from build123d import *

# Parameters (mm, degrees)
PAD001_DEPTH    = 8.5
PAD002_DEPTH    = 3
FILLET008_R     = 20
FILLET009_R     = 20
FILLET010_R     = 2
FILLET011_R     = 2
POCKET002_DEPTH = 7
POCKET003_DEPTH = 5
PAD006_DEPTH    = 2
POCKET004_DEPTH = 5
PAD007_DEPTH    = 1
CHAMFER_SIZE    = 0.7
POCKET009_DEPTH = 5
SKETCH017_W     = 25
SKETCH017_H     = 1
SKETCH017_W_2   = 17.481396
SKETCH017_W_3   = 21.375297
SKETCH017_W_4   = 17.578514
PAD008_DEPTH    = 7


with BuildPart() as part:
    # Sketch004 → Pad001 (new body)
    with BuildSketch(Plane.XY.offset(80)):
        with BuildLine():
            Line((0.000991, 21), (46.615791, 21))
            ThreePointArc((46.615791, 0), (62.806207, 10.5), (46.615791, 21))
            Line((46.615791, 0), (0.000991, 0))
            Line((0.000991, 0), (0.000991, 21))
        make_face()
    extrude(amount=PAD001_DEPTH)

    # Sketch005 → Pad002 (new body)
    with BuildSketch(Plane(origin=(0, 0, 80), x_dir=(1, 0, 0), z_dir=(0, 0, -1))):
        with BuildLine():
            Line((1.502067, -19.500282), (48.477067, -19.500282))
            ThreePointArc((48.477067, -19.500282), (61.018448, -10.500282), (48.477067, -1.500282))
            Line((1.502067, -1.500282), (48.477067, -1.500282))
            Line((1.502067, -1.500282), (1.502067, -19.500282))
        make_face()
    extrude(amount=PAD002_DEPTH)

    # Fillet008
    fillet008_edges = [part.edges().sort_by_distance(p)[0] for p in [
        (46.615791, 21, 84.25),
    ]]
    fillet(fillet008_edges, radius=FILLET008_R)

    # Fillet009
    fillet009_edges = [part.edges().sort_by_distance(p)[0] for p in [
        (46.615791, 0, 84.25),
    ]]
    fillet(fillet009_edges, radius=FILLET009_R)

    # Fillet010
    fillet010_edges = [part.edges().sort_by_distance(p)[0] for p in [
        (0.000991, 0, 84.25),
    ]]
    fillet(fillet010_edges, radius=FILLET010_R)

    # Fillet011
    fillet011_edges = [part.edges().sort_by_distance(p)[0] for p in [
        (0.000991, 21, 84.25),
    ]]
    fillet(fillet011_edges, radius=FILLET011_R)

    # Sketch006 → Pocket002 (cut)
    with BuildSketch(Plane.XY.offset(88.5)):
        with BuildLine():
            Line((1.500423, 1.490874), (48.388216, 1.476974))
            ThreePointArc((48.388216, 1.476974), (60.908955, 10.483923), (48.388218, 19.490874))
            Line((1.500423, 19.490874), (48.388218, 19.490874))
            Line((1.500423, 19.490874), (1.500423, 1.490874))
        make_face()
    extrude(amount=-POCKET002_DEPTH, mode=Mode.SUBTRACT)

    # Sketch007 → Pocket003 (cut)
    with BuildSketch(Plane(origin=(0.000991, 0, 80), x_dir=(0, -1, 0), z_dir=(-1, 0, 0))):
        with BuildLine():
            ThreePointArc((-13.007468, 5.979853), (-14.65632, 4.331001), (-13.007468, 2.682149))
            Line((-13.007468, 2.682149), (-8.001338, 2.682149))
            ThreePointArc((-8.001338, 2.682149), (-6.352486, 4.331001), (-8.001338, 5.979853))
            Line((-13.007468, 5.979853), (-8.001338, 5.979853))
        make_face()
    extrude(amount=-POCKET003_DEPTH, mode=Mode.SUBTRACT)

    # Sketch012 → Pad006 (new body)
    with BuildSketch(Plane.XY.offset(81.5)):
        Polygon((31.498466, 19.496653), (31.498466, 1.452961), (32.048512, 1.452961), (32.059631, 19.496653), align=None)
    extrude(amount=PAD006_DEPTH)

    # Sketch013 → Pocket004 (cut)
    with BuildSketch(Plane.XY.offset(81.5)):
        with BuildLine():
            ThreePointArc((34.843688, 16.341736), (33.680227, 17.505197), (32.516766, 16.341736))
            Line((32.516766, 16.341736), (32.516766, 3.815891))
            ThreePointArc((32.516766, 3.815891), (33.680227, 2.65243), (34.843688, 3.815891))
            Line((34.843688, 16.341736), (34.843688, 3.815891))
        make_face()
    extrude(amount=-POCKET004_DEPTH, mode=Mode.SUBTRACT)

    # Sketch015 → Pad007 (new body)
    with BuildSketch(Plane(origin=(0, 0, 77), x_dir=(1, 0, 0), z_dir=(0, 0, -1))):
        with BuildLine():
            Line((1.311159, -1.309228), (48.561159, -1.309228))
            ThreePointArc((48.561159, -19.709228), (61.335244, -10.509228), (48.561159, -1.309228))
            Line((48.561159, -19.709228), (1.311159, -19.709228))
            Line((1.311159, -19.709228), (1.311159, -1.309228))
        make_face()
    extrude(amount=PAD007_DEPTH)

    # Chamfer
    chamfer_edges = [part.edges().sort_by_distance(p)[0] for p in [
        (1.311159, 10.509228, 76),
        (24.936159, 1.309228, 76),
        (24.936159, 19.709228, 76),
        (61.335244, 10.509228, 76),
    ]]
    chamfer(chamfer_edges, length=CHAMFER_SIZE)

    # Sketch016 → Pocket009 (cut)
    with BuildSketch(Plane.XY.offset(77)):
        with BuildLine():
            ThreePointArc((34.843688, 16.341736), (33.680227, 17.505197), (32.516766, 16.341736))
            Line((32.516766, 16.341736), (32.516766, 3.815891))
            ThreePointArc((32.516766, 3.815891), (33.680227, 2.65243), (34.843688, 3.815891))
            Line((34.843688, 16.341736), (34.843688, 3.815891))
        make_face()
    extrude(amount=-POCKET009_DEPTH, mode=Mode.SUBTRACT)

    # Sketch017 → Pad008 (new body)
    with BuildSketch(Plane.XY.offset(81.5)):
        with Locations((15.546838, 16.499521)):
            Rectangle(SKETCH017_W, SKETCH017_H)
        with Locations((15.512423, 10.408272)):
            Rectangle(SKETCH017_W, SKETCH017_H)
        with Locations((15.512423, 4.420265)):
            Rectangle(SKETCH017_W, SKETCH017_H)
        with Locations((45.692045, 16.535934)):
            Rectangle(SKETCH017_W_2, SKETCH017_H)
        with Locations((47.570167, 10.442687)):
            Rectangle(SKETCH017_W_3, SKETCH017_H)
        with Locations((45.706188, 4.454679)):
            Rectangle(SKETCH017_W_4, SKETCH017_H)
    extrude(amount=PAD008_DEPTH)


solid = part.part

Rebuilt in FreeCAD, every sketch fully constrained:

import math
import FreeCAD as App
import Part
import Sketcher

V = App.Vector
Q = App.Units.Quantity


def edges_at(feature, points):
    """Names of the edges that pass closest to the given points."""
    edges = feature.Shape.Edges
    near = lambda p: min(range(len(edges)), key=lambda i: edges[i].distToShape(Part.Vertex(*p))[0])
    return sorted({f"Edge{near(p) + 1}" for p in points})

doc = App.newDocument("Part")
body = doc.addObject("PartDesign::Body", "Body")

# Sketch on XY plane
sketch1 = body.newObject("Sketcher::SketchObject", "Sketch")
sketch1.AttachmentSupport = (doc.getObject("XY_Plane"), [""])
sketch1.MapMode = "FlatFace"
sketch1.AttachmentOffset = App.Placement(V(0, 0, 80), App.Rotation())
sketch1.addGeometry(Part.LineSegment(V(46.615791, 21, 0), V(0.000991, 21, 0)), False)
sketch1.addGeometry(Part.LineSegment(V(0.000991, 21, 0), V(0.000991, 0, 0)), False)
sketch1.addGeometry(Part.LineSegment(V(0.000991, 0, 0), V(46.615791, 0, 0)), False)
sketch1.addGeometry(Part.ArcOfCircle(Part.Circle(V(51.306207, 10.5, 0), V(0, 0, 1), 11.5), math.radians(-114.070615), math.radians(114.070615)), False)
sketch1.addConstraint(Sketcher.Constraint("Coincident", 0, 2, 1, 1))
sketch1.addConstraint(Sketcher.Constraint("Coincident", 1, 2, 2, 1))
sketch1.addConstraint(Sketcher.Constraint("Coincident", 2, 2, 3, 1))
sketch1.addConstraint(Sketcher.Constraint("Coincident", 3, 2, 0, 1))
sketch1.addConstraint(Sketcher.Constraint("Horizontal", 0))
sketch1.addConstraint(Sketcher.Constraint("Vertical", 1))
sketch1.addConstraint(Sketcher.Constraint("Horizontal", 2))
sketch1.addConstraint(Sketcher.Constraint("PointOnObject", 1, 2, -1))
sketch1.addConstraint(Sketcher.Constraint("Vertical", 2, 2, 3, 2))
sketch1.addConstraint(Sketcher.Constraint("Radius", 3, Q("11.5 mm")))
sketch1.addConstraint(Sketcher.Constraint("DistanceY", 1, 2, 1, 1, Q("21 mm")))
sketch1.addConstraint(Sketcher.Constraint("DistanceX", 0, 2, 0, 1, Q("46.6148 mm")))
sketch1.addConstraint(Sketcher.Constraint("DistanceX", -1, 1, 0, 2, Q("0.000991 mm")))
pad1 = body.newObject("PartDesign::Pad", "Pad")
pad1.Profile = sketch1
pad1.Length = 8.5

# Sketch on XY plane
sketch2 = body.newObject("Sketcher::SketchObject", "Sketch001")
sketch2.AttachmentSupport = (doc.getObject("XY_Plane"), [""])
sketch2.MapMode = "FlatFace"
sketch2.AttachmentOffset = App.Placement(V(0, 0, 80), App.Rotation())
sketch2.addGeometry(Part.LineSegment(V(1.502067, 19.500282, 0), V(48.477067, 19.500282, 0)), False)
sketch2.addGeometry(Part.ArcOfCircle(Part.Circle(V(51.518448, 10.500282, 0), V(0, 0, 1), 9.5), math.radians(-108.671717), math.radians(108.671717)), False)
sketch2.addGeometry(Part.LineSegment(V(48.477067, 1.500282, 0), V(1.502067, 1.500282, 0)), False)
sketch2.addGeometry(Part.LineSegment(V(1.502067, 1.500282, 0), V(1.502067, 19.500282, 0)), False)
sketch2.addConstraint(Sketcher.Constraint("Coincident", 0, 2, 1, 2))
sketch2.addConstraint(Sketcher.Constraint("Coincident", 1, 1, 2, 1))
sketch2.addConstraint(Sketcher.Constraint("Coincident", 2, 2, 3, 1))
sketch2.addConstraint(Sketcher.Constraint("Coincident", 3, 2, 0, 1))
sketch2.addConstraint(Sketcher.Constraint("Horizontal", 0))
sketch2.addConstraint(Sketcher.Constraint("Horizontal", 2))
sketch2.addConstraint(Sketcher.Constraint("Vertical", 3))
sketch2.addConstraint(Sketcher.Constraint("Vertical", 0, 2, 1, 1))
sketch2.addConstraint(Sketcher.Constraint("Radius", 1, Q("9.5 mm")))
sketch2.addConstraint(Sketcher.Constraint("DistanceY", 3, 1, 3, 2, Q("18 mm")))
sketch2.addConstraint(Sketcher.Constraint("DistanceX", 0, 1, 0, 2, Q("46.975 mm")))
sketch2.addConstraint(Sketcher.Constraint("DistanceX", -1, 1, 1, 3, Q("51.518448 mm")))
sketch2.addConstraint(Sketcher.Constraint("DistanceY", -1, 1, 0, 2, Q("19.500282 mm")))
pad2 = body.newObject("PartDesign::Pad", "Pad001")
pad2.Profile = sketch2
pad2.Length = 3
pad2.Reversed = True
doc.recompute()

fillet = body.newObject("PartDesign::Fillet", "Fillet")
fillet.Base = (pad2, edges_at(pad2, [(46.616, 21, 84.25)]))
fillet.Radius = 20
doc.recompute()

fillet2 = body.newObject("PartDesign::Fillet", "Fillet001")
fillet2.Base = (fillet, edges_at(fillet, [(46.616, 0, 84.25)]))
fillet2.Radius = 20
doc.recompute()

fillet3 = body.newObject("PartDesign::Fillet", "Fillet002")
fillet3.Base = (fillet2, edges_at(fillet2, [(0.001, 0, 84.25)]))
fillet3.Radius = 2
doc.recompute()

fillet4 = body.newObject("PartDesign::Fillet", "Fillet003")
fillet4.Base = (fillet3, edges_at(fillet3, [(0.001, 21, 84.25)]))
fillet4.Radius = 2

# Sketch on XY plane
sketch3 = body.newObject("Sketcher::SketchObject", "Sketch002")
sketch3.AttachmentSupport = (doc.getObject("XY_Plane"), [""])
sketch3.MapMode = "FlatFace"
sketch3.AttachmentOffset = App.Placement(V(0, 0, 88.5), App.Rotation())
sketch3.addGeometry(Part.LineSegment(V(1.500423, 1.490874, 0), V(48.388216, 1.476974, 0)), False)
sketch3.addGeometry(Part.ArcOfCircle(Part.Circle(V(51.408955, 10.483924, 0), V(0, 0, 1), 9.5), math.radians(-108.540354), math.radians(108.540341)), False)
sketch3.addGeometry(Part.LineSegment(V(48.388218, 19.490874, 0), V(1.500423, 19.490874, 0)), False)
sketch3.addGeometry(Part.LineSegment(V(1.500423, 19.490874, 0), V(1.500423, 1.490874, 0)), False)
sketch3.addConstraint(Sketcher.Constraint("Coincident", 0, 2, 1, 1))
sketch3.addConstraint(Sketcher.Constraint("Coincident", 1, 2, 2, 1))
sketch3.addConstraint(Sketcher.Constraint("Coincident", 2, 2, 3, 1))
sketch3.addConstraint(Sketcher.Constraint("Coincident", 3, 2, 0, 1))
sketch3.addConstraint(Sketcher.Constraint("Horizontal", 2))
sketch3.addConstraint(Sketcher.Constraint("Vertical", 3))
sketch3.addConstraint(Sketcher.Constraint("Vertical", 0, 2, 1, 2))
sketch3.addConstraint(Sketcher.Constraint("Radius", 1, Q("9.5 mm")))
sketch3.addConstraint(Sketcher.Constraint("DistanceY", 3, 2, 3, 1, Q("18 mm")))
sketch3.addConstraint(Sketcher.Constraint("DistanceY", 0, 2, 1, 2, Q("18.0139 mm")))
sketch3.addConstraint(Sketcher.Constraint("DistanceX", 2, 2, 2, 1, Q("46.887795 mm")))
sketch3.addConstraint(Sketcher.Constraint("DistanceX", -1, 1, 1, 3, Q("51.408955 mm")))
sketch3.addConstraint(Sketcher.Constraint("DistanceY", -1, 1, 1, 3, Q("10.483924 mm")))
pocket1 = body.newObject("PartDesign::Pocket", "Pocket")
pocket1.Profile = sketch3
pocket1.Length = 7

# Sketch on YZ plane
sketch4 = body.newObject("Sketcher::SketchObject", "Sketch003")
sketch4.AttachmentSupport = (doc.getObject("YZ_Plane"), [""])
sketch4.MapMode = "FlatFace"
sketch4.AttachmentOffset = App.Placement(V(0, 0, 0.000991), App.Rotation())
sketch4.addGeometry(Part.ArcOfCircle(Part.Circle(V(13.007468, 84.331001, 0), V(0, 0, 1), 1.648852), math.radians(-90), math.radians(90)), False)
sketch4.addGeometry(Part.LineSegment(V(13.007468, 82.682149, 0), V(8.001338, 82.682149, 0)), False)
sketch4.addGeometry(Part.ArcOfCircle(Part.Circle(V(8.001338, 84.331001, 0), V(0, 0, 1), 1.648852), math.radians(90), math.radians(270)), False)
sketch4.addGeometry(Part.LineSegment(V(8.001338, 85.979853, 0), V(13.007468, 85.979853, 0)), False)
sketch4.addConstraint(Sketcher.Constraint("Tangent", 0, 1, 1, 1))
sketch4.addConstraint(Sketcher.Constraint("Tangent", 1, 2, 2, 2))
sketch4.addConstraint(Sketcher.Constraint("Tangent", 2, 1, 3, 1))
sketch4.addConstraint(Sketcher.Constraint("Tangent", 3, 2, 0, 2))
sketch4.addConstraint(Sketcher.Constraint("Horizontal", 1))
sketch4.addConstraint(Sketcher.Constraint("Horizontal", 3))
sketch4.addConstraint(Sketcher.Constraint("DistanceY", -1, 1, 0, 3, Q("84.331001 mm")))
sketch4.addConstraint(Sketcher.Constraint("Radius", 0, Q("1.648852 mm")))
sketch4.addConstraint(Sketcher.Constraint("DistanceX", 1, 2, 1, 1, Q("5.00613 mm")))
sketch4.addConstraint(Sketcher.Constraint("DistanceX", -1, 1, 0, 3, Q("13.007468 mm")))
pocket2 = body.newObject("PartDesign::Pocket", "Pocket001")
pocket2.Profile = sketch4
pocket2.Length = 5
pocket2.Reversed = True

# Sketch on XY plane
sketch5 = body.newObject("Sketcher::SketchObject", "Sketch004")
sketch5.AttachmentSupport = (doc.getObject("XY_Plane"), [""])
sketch5.MapMode = "FlatFace"
sketch5.AttachmentOffset = App.Placement(V(0, 0, 81.5), App.Rotation())
sketch5.addGeometry(Part.LineSegment(V(31.498466, 19.496653, 0), V(31.498466, 1.452961, 0)), False)
sketch5.addGeometry(Part.LineSegment(V(31.498466, 1.452961, 0), V(32.048512, 1.452961, 0)), False)
sketch5.addGeometry(Part.LineSegment(V(32.048512, 1.452961, 0), V(32.059631, 19.496653, 0)), False)
sketch5.addGeometry(Part.LineSegment(V(32.059631, 19.496653, 0), V(31.498466, 19.496653, 0)), False)
sketch5.addConstraint(Sketcher.Constraint("Coincident", 0, 2, 1, 1))
sketch5.addConstraint(Sketcher.Constraint("Coincident", 1, 2, 2, 1))
sketch5.addConstraint(Sketcher.Constraint("Coincident", 2, 2, 3, 1))
sketch5.addConstraint(Sketcher.Constraint("Coincident", 3, 2, 0, 1))
sketch5.addConstraint(Sketcher.Constraint("Vertical", 0))
sketch5.addConstraint(Sketcher.Constraint("Horizontal", 1))
sketch5.addConstraint(Sketcher.Constraint("Horizontal", 3))
sketch5.addConstraint(Sketcher.Constraint("DistanceY", 0, 2, 0, 1, Q("18.043692 mm")))
sketch5.addConstraint(Sketcher.Constraint("DistanceX", 1, 1, 1, 2, Q("0.550046 mm")))
sketch5.addConstraint(Sketcher.Constraint("DistanceX", 3, 2, 3, 1, Q("0.561165 mm")))
sketch5.addConstraint(Sketcher.Constraint("DistanceY", -1, 1, 0, 2, Q("1.452961 mm")))
sketch5.addConstraint(Sketcher.Constraint("DistanceX", -1, 1, 2, 2, Q("32.059631 mm")))
pad3 = body.newObject("PartDesign::Pad", "Pad002")
pad3.Profile = sketch5
pad3.Length = 2

# Sketch on XY plane
sketch6 = body.newObject("Sketcher::SketchObject", "Sketch005")
sketch6.AttachmentSupport = (doc.getObject("XY_Plane"), [""])
sketch6.MapMode = "FlatFace"
sketch6.AttachmentOffset = App.Placement(V(0, 0, 81.5), App.Rotation())
sketch6.addGeometry(Part.ArcOfCircle(Part.Circle(V(33.680227, 16.341736, 0), V(0, 0, 1), 1.163461), math.radians(0), math.radians(180)), False)
sketch6.addGeometry(Part.LineSegment(V(32.516766, 16.341736, 0), V(32.516766, 3.815891, 0)), False)
sketch6.addGeometry(Part.ArcOfCircle(Part.Circle(V(33.680227, 3.815891, 0), V(0, 0, 1), 1.163461), math.radians(180), math.radians(360)), False)
sketch6.addGeometry(Part.LineSegment(V(34.843688, 3.815891, 0), V(34.843688, 16.341736, 0)), False)
sketch6.addConstraint(Sketcher.Constraint("Tangent", 0, 2, 1, 1))
sketch6.addConstraint(Sketcher.Constraint("Tangent", 1, 2, 2, 1))
sketch6.addConstraint(Sketcher.Constraint("Tangent", 2, 2, 3, 1))
sketch6.addConstraint(Sketcher.Constraint("Tangent", 3, 2, 0, 1))
sketch6.addConstraint(Sketcher.Constraint("Vertical", 1))
sketch6.addConstraint(Sketcher.Constraint("Vertical", 3))
sketch6.addConstraint(Sketcher.Constraint("Radius", 0, Q("1.163461 mm")))
sketch6.addConstraint(Sketcher.Constraint("DistanceY", 1, 2, 1, 1, Q("12.525845 mm")))
sketch6.addConstraint(Sketcher.Constraint("DistanceY", -1, 1, 2, 3, Q("3.815891 mm")))
sketch6.addConstraint(Sketcher.Constraint("DistanceX", -1, 1, 0, 3, Q("33.680227 mm")))
pocket3 = body.newObject("PartDesign::Pocket", "Pocket002")
pocket3.Profile = sketch6
pocket3.Length = 5

# Sketch on XY plane
sketch7 = body.newObject("Sketcher::SketchObject", "Sketch006")
sketch7.AttachmentSupport = (doc.getObject("XY_Plane"), [""])
sketch7.MapMode = "FlatFace"
sketch7.AttachmentOffset = App.Placement(V(0, 0, 77), App.Rotation())
sketch7.addGeometry(Part.LineSegment(V(48.561159, 1.309228, 0), V(1.311159, 1.309228, 0)), False)
sketch7.addGeometry(Part.LineSegment(V(1.311159, 1.309228, 0), V(1.311159, 19.709228, 0)), False)
sketch7.addGeometry(Part.LineSegment(V(1.311159, 19.709228, 0), V(48.561159, 19.709228, 0)), False)
sketch7.addGeometry(Part.ArcOfCircle(Part.Circle(V(51.635244, 10.509228, 0), V(0, 0, 1), 9.7), math.radians(-108.476519), math.radians(108.476519)), False)
sketch7.addConstraint(Sketcher.Constraint("Coincident", 0, 2, 1, 1))
sketch7.addConstraint(Sketcher.Constraint("Coincident", 1, 2, 2, 1))
sketch7.addConstraint(Sketcher.Constraint("Coincident", 2, 2, 3, 2))
sketch7.addConstraint(Sketcher.Constraint("Coincident", 3, 1, 0, 1))
sketch7.addConstraint(Sketcher.Constraint("Horizontal", 0))
sketch7.addConstraint(Sketcher.Constraint("Vertical", 1))
sketch7.addConstraint(Sketcher.Constraint("Horizontal", 2))
sketch7.addConstraint(Sketcher.Constraint("Vertical", 2, 2, 3, 1))
sketch7.addConstraint(Sketcher.Constraint("Radius", 3, Q("9.7 mm")))
sketch7.addConstraint(Sketcher.Constraint("DistanceY", 1, 1, 1, 2, Q("18.4 mm")))
sketch7.addConstraint(Sketcher.Constraint("DistanceX", 0, 2, 0, 1, Q("47.25 mm")))
sketch7.addConstraint(Sketcher.Constraint("DistanceX", -1, 1, 0, 2, Q("1.311159 mm")))
sketch7.addConstraint(Sketcher.Constraint("DistanceY", -1, 1, 0, 2, Q("1.309228 mm")))
pad4 = body.newObject("PartDesign::Pad", "Pad003")
pad4.Profile = sketch7
pad4.Length = 1
pad4.Reversed = True
doc.recompute()

chamfer = body.newObject("PartDesign::Chamfer", "Chamfer")
chamfer.Base = (pad4, edges_at(pad4, [
    (1.311, 10.509, 76),
    (24.936, 1.309, 76),
    (24.936, 19.709, 76),
    (61.335, 10.509, 76),
]))
chamfer.Size = 0.7

# Sketch on XY plane
sketch8 = body.newObject("Sketcher::SketchObject", "Sketch007")
sketch8.AttachmentSupport = (doc.getObject("XY_Plane"), [""])
sketch8.MapMode = "FlatFace"
sketch8.AttachmentOffset = App.Placement(V(0, 0, 77), App.Rotation())
sketch8.addGeometry(Part.ArcOfCircle(Part.Circle(V(33.680227, 16.341736, 0), V(0, 0, 1), 1.163461), math.radians(0), math.radians(180)), False)
sketch8.addGeometry(Part.LineSegment(V(32.516766, 16.341736, 0), V(32.516766, 3.815891, 0)), False)
sketch8.addGeometry(Part.ArcOfCircle(Part.Circle(V(33.680227, 3.815891, 0), V(0, 0, 1), 1.163461), math.radians(180), math.radians(360)), False)
sketch8.addGeometry(Part.LineSegment(V(34.843688, 3.815891, 0), V(34.843688, 16.341736, 0)), False)
sketch8.addConstraint(Sketcher.Constraint("Tangent", 0, 2, 1, 1))
sketch8.addConstraint(Sketcher.Constraint("Tangent", 1, 2, 2, 1))
sketch8.addConstraint(Sketcher.Constraint("Tangent", 2, 2, 3, 1))
sketch8.addConstraint(Sketcher.Constraint("Tangent", 3, 2, 0, 1))
sketch8.addConstraint(Sketcher.Constraint("Vertical", 1))
sketch8.addConstraint(Sketcher.Constraint("Vertical", 3))
sketch8.addConstraint(Sketcher.Constraint("Radius", 0, Q("1.163461 mm")))
sketch8.addConstraint(Sketcher.Constraint("DistanceY", 1, 2, 1, 1, Q("12.525845 mm")))
sketch8.addConstraint(Sketcher.Constraint("DistanceY", -1, 1, 2, 3, Q("3.815891 mm")))
sketch8.addConstraint(Sketcher.Constraint("DistanceX", -1, 1, 0, 3, Q("33.680227 mm")))
pocket4 = body.newObject("PartDesign::Pocket", "Pocket003")
pocket4.Profile = sketch8
pocket4.Length = 5

# Sketch on XY plane
sketch9 = body.newObject("Sketcher::SketchObject", "Sketch008")
sketch9.AttachmentSupport = (doc.getObject("XY_Plane"), [""])
sketch9.MapMode = "FlatFace"
sketch9.AttachmentOffset = App.Placement(V(0, 0, 81.5), App.Rotation())
sketch9.addGeometry(Part.LineSegment(V(3.046838, 16.999521, 0), V(3.046838, 15.999521, 0)), False)
sketch9.addGeometry(Part.LineSegment(V(3.046838, 15.999521, 0), V(28.046838, 15.999521, 0)), False)
sketch9.addGeometry(Part.LineSegment(V(28.046838, 15.999521, 0), V(28.046838, 16.999521, 0)), False)
sketch9.addGeometry(Part.LineSegment(V(28.046838, 16.999521, 0), V(3.046838, 16.999521, 0)), False)
sketch9.addGeometry(Part.LineSegment(V(3.012423, 10.908272, 0), V(3.012423, 9.908272, 0)), False)
sketch9.addGeometry(Part.LineSegment(V(3.012423, 9.908272, 0), V(28.012423, 9.908272, 0)), False)
sketch9.addGeometry(Part.LineSegment(V(28.012423, 9.908272, 0), V(28.012423, 10.908272, 0)), False)
sketch9.addGeometry(Part.LineSegment(V(28.012423, 10.908272, 0), V(3.012423, 10.908272, 0)), False)
sketch9.addGeometry(Part.LineSegment(V(3.012423, 4.920265, 0), V(3.012423, 3.920265, 0)), False)
sketch9.addGeometry(Part.LineSegment(V(3.012423, 3.920265, 0), V(28.012423, 3.920265, 0)), False)
sketch9.addGeometry(Part.LineSegment(V(28.012423, 3.920265, 0), V(28.012423, 4.920265, 0)), False)
sketch9.addGeometry(Part.LineSegment(V(28.012423, 4.920265, 0), V(3.012423, 4.920265, 0)), False)
sketch9.addGeometry(Part.LineSegment(V(36.951347, 17.035934, 0), V(36.951347, 16.035934, 0)), False)
sketch9.addGeometry(Part.LineSegment(V(36.951347, 16.035934, 0), V(54.432743, 16.035934, 0)), False)
sketch9.addGeometry(Part.LineSegment(V(54.432743, 16.035934, 0), V(54.432743, 17.035934, 0)), False)
sketch9.addGeometry(Part.LineSegment(V(54.432743, 17.035934, 0), V(36.951347, 17.035934, 0)), False)
sketch9.addGeometry(Part.LineSegment(V(36.882519, 10.942687, 0), V(36.882519, 9.942687, 0)), False)
sketch9.addGeometry(Part.LineSegment(V(36.882519, 9.942687, 0), V(58.257815, 9.942687, 0)), False)
sketch9.addGeometry(Part.LineSegment(V(58.257815, 9.942687, 0), V(58.257815, 10.942687, 0)), False)
sketch9.addGeometry(Part.LineSegment(V(58.257815, 10.942687, 0), V(36.882519, 10.942687, 0)), False)
sketch9.addGeometry(Part.LineSegment(V(36.916931, 4.954679, 0), V(36.916931, 3.954679, 0)), False)
sketch9.addGeometry(Part.LineSegment(V(36.916931, 3.954679, 0), V(54.495445, 3.954679, 0)), False)
sketch9.addGeometry(Part.LineSegment(V(54.495445, 3.954679, 0), V(54.495445, 4.954679, 0)), False)
sketch9.addGeometry(Part.LineSegment(V(54.495445, 4.954679, 0), V(36.916931, 4.954679, 0)), False)
sketch9.addConstraint(Sketcher.Constraint("Coincident", 0, 2, 1, 1))
sketch9.addConstraint(Sketcher.Constraint("Coincident", 1, 2, 2, 1))
sketch9.addConstraint(Sketcher.Constraint("Coincident", 2, 2, 3, 1))
sketch9.addConstraint(Sketcher.Constraint("Coincident", 3, 2, 0, 1))
sketch9.addConstraint(Sketcher.Constraint("Coincident", 4, 2, 5, 1))
sketch9.addConstraint(Sketcher.Constraint("Coincident", 5, 2, 6, 1))
sketch9.addConstraint(Sketcher.Constraint("Coincident", 6, 2, 7, 1))
sketch9.addConstraint(Sketcher.Constraint("Coincident", 7, 2, 4, 1))
sketch9.addConstraint(Sketcher.Constraint("Coincident", 8, 2, 9, 1))
sketch9.addConstraint(Sketcher.Constraint("Coincident", 9, 2, 10, 1))
sketch9.addConstraint(Sketcher.Constraint("Coincident", 10, 2, 11, 1))
sketch9.addConstraint(Sketcher.Constraint("Coincident", 11, 2, 8, 1))
sketch9.addConstraint(Sketcher.Constraint("Coincident", 12, 2, 13, 1))
sketch9.addConstraint(Sketcher.Constraint("Coincident", 13, 2, 14, 1))
sketch9.addConstraint(Sketcher.Constraint("Coincident", 14, 2, 15, 1))
sketch9.addConstraint(Sketcher.Constraint("Coincident", 15, 2, 12, 1))
sketch9.addConstraint(Sketcher.Constraint("Coincident", 16, 2, 17, 1))
sketch9.addConstraint(Sketcher.Constraint("Coincident", 17, 2, 18, 1))
sketch9.addConstraint(Sketcher.Constraint("Coincident", 18, 2, 19, 1))
sketch9.addConstraint(Sketcher.Constraint("Coincident", 19, 2, 16, 1))
sketch9.addConstraint(Sketcher.Constraint("Coincident", 20, 2, 21, 1))
sketch9.addConstraint(Sketcher.Constraint("Coincident", 21, 2, 22, 1))
sketch9.addConstraint(Sketcher.Constraint("Coincident", 22, 2, 23, 1))
sketch9.addConstraint(Sketcher.Constraint("Coincident", 23, 2, 20, 1))
sketch9.addConstraint(Sketcher.Constraint("Vertical", 0))
sketch9.addConstraint(Sketcher.Constraint("Horizontal", 1))
sketch9.addConstraint(Sketcher.Constraint("Vertical", 2))
sketch9.addConstraint(Sketcher.Constraint("Horizontal", 3))
sketch9.addConstraint(Sketcher.Constraint("Vertical", 4))
sketch9.addConstraint(Sketcher.Constraint("Horizontal", 5))
sketch9.addConstraint(Sketcher.Constraint("Vertical", 6))
sketch9.addConstraint(Sketcher.Constraint("Horizontal", 7))
sketch9.addConstraint(Sketcher.Constraint("Vertical", 8))
sketch9.addConstraint(Sketcher.Constraint("Horizontal", 9))
sketch9.addConstraint(Sketcher.Constraint("Vertical", 10))
sketch9.addConstraint(Sketcher.Constraint("Horizontal", 11))
sketch9.addConstraint(Sketcher.Constraint("Vertical", 12))
sketch9.addConstraint(Sketcher.Constraint("Horizontal", 13))
sketch9.addConstraint(Sketcher.Constraint("Vertical", 14))
sketch9.addConstraint(Sketcher.Constraint("Horizontal", 15))
sketch9.addConstraint(Sketcher.Constraint("Vertical", 16))
sketch9.addConstraint(Sketcher.Constraint("Horizontal", 17))
sketch9.addConstraint(Sketcher.Constraint("Vertical", 18))
sketch9.addConstraint(Sketcher.Constraint("Horizontal", 19))
sketch9.addConstraint(Sketcher.Constraint("Vertical", 20))
sketch9.addConstraint(Sketcher.Constraint("Horizontal", 21))
sketch9.addConstraint(Sketcher.Constraint("Vertical", 22))
sketch9.addConstraint(Sketcher.Constraint("Horizontal", 23))
sketch9.addConstraint(Sketcher.Constraint("Vertical", 7, 2, 8, 2))
sketch9.addConstraint(Sketcher.Constraint("Vertical", 6, 2, 9, 2))
sketch9.addConstraint(Sketcher.Constraint("Equal", 3, 5))
sketch9.addConstraint(Sketcher.Constraint("Equal", 2, 4))
sketch9.addConstraint(Sketcher.Constraint("Equal", 6, 8))
sketch9.addConstraint(Sketcher.Constraint("Equal", 10, 12))
sketch9.addConstraint(Sketcher.Constraint("Equal", 14, 16))
sketch9.addConstraint(Sketcher.Constraint("Equal", 18, 20))
sketch9.addConstraint(Sketcher.Constraint("DistanceX", 1, 1, 1, 2, Q("25 mm")))
sketch9.addConstraint(Sketcher.Constraint("DistanceY", 0, 2, 0, 1, Q("1 mm")))
sketch9.addConstraint(Sketcher.Constraint("DistanceX", 13, 2, 21, 2, Q("0.062702 mm")))
sketch9.addConstraint(Sketcher.Constraint("DistanceX", 13, 1, 13, 2, Q("17.481396 mm")))
sketch9.addConstraint(Sketcher.Constraint("DistanceX", 17, 1, 17, 2, Q("21.375297 mm")))
sketch9.addConstraint(Sketcher.Constraint("DistanceX", 21, 1, 21, 2, Q("17.578514 mm")))
sketch9.addConstraint(Sketcher.Constraint("DistanceX", -1, 1, 0, 2, Q("3.046838 mm")))
sketch9.addConstraint(Sketcher.Constraint("DistanceY", -1, 1, 0, 2, Q("15.999521 mm")))
sketch9.addConstraint(Sketcher.Constraint("DistanceX", -1, 1, 16, 2, Q("36.882519 mm")))
sketch9.addConstraint(Sketcher.Constraint("DistanceX", -1, 1, 20, 2, Q("36.916931 mm")))
sketch9.addConstraint(Sketcher.Constraint("DistanceY", -1, 1, 20, 2, Q("3.954679 mm")))
sketch9.addConstraint(Sketcher.Constraint("DistanceY", 4, 2, 0, 2, Q("6.091249 mm")))
sketch9.addConstraint(Sketcher.Constraint("DistanceY", 10, 2, 12, 2, Q("11.115669 mm")))
sketch9.addConstraint(Sketcher.Constraint("DistanceX", 6, 2, 13, 2, Q("26.42032 mm")))
sketch9.addConstraint(Sketcher.Constraint("DistanceY", 10, 2, 16, 2, Q("5.022422 mm")))
sketch9.addConstraint(Sketcher.Constraint("DistanceY", -1, 1, 8, 2, Q("3.920265 mm")))
pad5 = body.newObject("PartDesign::Pad", "Pad004")
pad5.Profile = sketch9
pad5.Length = 7

doc.recompute()
